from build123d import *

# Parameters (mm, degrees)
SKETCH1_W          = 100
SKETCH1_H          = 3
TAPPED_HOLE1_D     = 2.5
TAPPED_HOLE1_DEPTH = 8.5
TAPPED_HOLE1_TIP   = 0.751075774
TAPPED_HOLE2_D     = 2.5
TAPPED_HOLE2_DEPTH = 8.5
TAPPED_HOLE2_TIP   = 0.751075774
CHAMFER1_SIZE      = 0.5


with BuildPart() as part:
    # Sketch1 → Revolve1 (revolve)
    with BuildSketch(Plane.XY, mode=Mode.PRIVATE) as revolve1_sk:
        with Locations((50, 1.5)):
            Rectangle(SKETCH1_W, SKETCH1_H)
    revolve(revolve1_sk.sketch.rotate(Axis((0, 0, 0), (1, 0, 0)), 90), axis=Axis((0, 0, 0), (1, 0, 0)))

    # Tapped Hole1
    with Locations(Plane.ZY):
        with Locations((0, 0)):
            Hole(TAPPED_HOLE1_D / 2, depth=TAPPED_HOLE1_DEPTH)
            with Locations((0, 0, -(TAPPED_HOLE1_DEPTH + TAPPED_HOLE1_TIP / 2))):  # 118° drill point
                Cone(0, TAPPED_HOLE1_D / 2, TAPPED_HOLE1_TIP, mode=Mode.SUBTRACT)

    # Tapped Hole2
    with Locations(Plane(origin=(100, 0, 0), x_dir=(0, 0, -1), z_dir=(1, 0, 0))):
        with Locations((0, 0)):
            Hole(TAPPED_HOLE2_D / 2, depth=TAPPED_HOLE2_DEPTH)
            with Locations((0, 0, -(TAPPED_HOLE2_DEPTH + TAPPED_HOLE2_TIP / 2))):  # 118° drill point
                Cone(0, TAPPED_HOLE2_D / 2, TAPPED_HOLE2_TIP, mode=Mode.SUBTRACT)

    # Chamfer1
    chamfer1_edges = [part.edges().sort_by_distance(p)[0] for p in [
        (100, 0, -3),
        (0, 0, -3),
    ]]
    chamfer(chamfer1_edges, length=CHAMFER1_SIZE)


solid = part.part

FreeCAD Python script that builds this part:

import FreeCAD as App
import Part
import Sketcher


def edges_at(feature, points):
    """Names of the edges that pass closest to the given points."""
    edges = feature.Shape.Edges
    near = lambda p: min(range(len(edges)), key=lambda i: edges[i].distToShape(Part.Vertex(*p))[0])
    return sorted({f"Edge{near(p) + 1}" for p in points})


def add_polygon(sketch, points):
    """Adds a closed chain of lines whose ends are joined by coincident constraints."""
    first, n = sketch.GeometryCount, len(points)
    for a, b in zip(points, points[1:] + points[:1]):
        sketch.addGeometry(Part.LineSegment(App.Vector(*a, 0), App.Vector(*b, 0)), False)
    for i in range(n):
        sketch.addConstraint(Sketcher.Constraint("Coincident", first + i, 2, first + (i + 1) % n, 1))

doc = App.newDocument("Part")
body = doc.addObject("PartDesign::Body", "Body")

# Sketch on XY plane
sketch1 = body.newObject("Sketcher::SketchObject", "Sketch")
sketch1.AttachmentSupport = (doc.getObject("XY_Plane"), [""])
sketch1.MapMode = "FlatFace"
add_polygon(sketch1, [(0, 3), (0, 0), (100, 0), (100, 3)])  # lines 0-3
sketch1.addConstraint(Sketcher.Constraint("Vertical", 0))
sketch1.addConstraint(Sketcher.Constraint("Horizontal", 1))
sketch1.addConstraint(Sketcher.Constraint("Vertical", 2))
sketch1.addConstraint(Sketcher.Constraint("Horizontal", 3))
sketch1.addConstraint(Sketcher.Constraint("Coincident", 0, 2, -1, 1))
sketch1.addConstraint(Sketcher.Constraint("DistanceX", 1, 1, 1, 2, 100.0))
sketch1.addConstraint(Sketcher.Constraint("DistanceY", 0, 2, 0, 1, 3.0))
revolution = body.newObject("PartDesign::Revolution", "Revolution")
revolution.Profile = sketch1
revolution.ReferenceAxis = (sketch1, ["H_Axis"])
revolution.Angle = 360

# Sketch on YZ plane
sketch2 = body.newObject("Sketcher::SketchObject", "Sketch001")
sketch2.AttachmentSupport = (doc.getObject("YZ_Plane"), [""])
sketch2.MapMode = "FlatFace"
sketch2.addGeometry(Part.Circle(App.Vector(0, 0, 0), App.Vector(0, 0, 1), 1.2), False)
sketch2.addConstraint(Sketcher.Constraint("Coincident", 0, 3, -1, 1))
sketch2.addConstraint(Sketcher.Constraint("Diameter", 0, 2.5))
doc.recompute()
hole = body.newObject("PartDesign::Hole", "Hole")
hole.Profile = sketch2
hole.ThreadType = "None"
hole.Diameter = 2.5
hole.DepthType = "Dimension"
hole.Depth = 8.5
hole.DrillPoint = "Angled"
hole.DrillPointAngle = 118
hole.Reversed = True

# Sketch on YZ plane
sketch3 = body.newObject("Sketcher::SketchObject", "Sketch002")
sketch3.AttachmentSupport = (doc.getObject("YZ_Plane"), [""])
sketch3.MapMode = "FlatFace"
sketch3.AttachmentOffset = App.Placement(App.Vector(0, 0, 100), App.Rotation())
sketch3.addGeometry(Part.Circle(App.Vector(0, 0, 0), App.Vector(0, 0, 1), 1.2), False)
sketch3.addConstraint(Sketcher.Constraint("Coincident", 0, 3, -1, 1))
sketch3.addConstraint(Sketcher.Constraint("Diameter", 0, 2.5))
doc.recompute()
hole2 = body.newObject("PartDesign::Hole", "Hole001")
hole2.Profile = sketch3
hole2.ThreadType = "None"
hole2.Diameter = 2.5
hole2.DepthType = "Dimension"
hole2.Depth = 8.5
hole2.DrillPoint = "Angled"
hole2.DrillPointAngle = 118
doc.recompute()

chamfer = body.newObject("PartDesign::Chamfer", "Chamfer")
chamfer.Base = (hole2, edges_at(hole2, [(100, 0, -3), (0, 0, -3)]))
chamfer.Size = 0.5

doc.recompute()
